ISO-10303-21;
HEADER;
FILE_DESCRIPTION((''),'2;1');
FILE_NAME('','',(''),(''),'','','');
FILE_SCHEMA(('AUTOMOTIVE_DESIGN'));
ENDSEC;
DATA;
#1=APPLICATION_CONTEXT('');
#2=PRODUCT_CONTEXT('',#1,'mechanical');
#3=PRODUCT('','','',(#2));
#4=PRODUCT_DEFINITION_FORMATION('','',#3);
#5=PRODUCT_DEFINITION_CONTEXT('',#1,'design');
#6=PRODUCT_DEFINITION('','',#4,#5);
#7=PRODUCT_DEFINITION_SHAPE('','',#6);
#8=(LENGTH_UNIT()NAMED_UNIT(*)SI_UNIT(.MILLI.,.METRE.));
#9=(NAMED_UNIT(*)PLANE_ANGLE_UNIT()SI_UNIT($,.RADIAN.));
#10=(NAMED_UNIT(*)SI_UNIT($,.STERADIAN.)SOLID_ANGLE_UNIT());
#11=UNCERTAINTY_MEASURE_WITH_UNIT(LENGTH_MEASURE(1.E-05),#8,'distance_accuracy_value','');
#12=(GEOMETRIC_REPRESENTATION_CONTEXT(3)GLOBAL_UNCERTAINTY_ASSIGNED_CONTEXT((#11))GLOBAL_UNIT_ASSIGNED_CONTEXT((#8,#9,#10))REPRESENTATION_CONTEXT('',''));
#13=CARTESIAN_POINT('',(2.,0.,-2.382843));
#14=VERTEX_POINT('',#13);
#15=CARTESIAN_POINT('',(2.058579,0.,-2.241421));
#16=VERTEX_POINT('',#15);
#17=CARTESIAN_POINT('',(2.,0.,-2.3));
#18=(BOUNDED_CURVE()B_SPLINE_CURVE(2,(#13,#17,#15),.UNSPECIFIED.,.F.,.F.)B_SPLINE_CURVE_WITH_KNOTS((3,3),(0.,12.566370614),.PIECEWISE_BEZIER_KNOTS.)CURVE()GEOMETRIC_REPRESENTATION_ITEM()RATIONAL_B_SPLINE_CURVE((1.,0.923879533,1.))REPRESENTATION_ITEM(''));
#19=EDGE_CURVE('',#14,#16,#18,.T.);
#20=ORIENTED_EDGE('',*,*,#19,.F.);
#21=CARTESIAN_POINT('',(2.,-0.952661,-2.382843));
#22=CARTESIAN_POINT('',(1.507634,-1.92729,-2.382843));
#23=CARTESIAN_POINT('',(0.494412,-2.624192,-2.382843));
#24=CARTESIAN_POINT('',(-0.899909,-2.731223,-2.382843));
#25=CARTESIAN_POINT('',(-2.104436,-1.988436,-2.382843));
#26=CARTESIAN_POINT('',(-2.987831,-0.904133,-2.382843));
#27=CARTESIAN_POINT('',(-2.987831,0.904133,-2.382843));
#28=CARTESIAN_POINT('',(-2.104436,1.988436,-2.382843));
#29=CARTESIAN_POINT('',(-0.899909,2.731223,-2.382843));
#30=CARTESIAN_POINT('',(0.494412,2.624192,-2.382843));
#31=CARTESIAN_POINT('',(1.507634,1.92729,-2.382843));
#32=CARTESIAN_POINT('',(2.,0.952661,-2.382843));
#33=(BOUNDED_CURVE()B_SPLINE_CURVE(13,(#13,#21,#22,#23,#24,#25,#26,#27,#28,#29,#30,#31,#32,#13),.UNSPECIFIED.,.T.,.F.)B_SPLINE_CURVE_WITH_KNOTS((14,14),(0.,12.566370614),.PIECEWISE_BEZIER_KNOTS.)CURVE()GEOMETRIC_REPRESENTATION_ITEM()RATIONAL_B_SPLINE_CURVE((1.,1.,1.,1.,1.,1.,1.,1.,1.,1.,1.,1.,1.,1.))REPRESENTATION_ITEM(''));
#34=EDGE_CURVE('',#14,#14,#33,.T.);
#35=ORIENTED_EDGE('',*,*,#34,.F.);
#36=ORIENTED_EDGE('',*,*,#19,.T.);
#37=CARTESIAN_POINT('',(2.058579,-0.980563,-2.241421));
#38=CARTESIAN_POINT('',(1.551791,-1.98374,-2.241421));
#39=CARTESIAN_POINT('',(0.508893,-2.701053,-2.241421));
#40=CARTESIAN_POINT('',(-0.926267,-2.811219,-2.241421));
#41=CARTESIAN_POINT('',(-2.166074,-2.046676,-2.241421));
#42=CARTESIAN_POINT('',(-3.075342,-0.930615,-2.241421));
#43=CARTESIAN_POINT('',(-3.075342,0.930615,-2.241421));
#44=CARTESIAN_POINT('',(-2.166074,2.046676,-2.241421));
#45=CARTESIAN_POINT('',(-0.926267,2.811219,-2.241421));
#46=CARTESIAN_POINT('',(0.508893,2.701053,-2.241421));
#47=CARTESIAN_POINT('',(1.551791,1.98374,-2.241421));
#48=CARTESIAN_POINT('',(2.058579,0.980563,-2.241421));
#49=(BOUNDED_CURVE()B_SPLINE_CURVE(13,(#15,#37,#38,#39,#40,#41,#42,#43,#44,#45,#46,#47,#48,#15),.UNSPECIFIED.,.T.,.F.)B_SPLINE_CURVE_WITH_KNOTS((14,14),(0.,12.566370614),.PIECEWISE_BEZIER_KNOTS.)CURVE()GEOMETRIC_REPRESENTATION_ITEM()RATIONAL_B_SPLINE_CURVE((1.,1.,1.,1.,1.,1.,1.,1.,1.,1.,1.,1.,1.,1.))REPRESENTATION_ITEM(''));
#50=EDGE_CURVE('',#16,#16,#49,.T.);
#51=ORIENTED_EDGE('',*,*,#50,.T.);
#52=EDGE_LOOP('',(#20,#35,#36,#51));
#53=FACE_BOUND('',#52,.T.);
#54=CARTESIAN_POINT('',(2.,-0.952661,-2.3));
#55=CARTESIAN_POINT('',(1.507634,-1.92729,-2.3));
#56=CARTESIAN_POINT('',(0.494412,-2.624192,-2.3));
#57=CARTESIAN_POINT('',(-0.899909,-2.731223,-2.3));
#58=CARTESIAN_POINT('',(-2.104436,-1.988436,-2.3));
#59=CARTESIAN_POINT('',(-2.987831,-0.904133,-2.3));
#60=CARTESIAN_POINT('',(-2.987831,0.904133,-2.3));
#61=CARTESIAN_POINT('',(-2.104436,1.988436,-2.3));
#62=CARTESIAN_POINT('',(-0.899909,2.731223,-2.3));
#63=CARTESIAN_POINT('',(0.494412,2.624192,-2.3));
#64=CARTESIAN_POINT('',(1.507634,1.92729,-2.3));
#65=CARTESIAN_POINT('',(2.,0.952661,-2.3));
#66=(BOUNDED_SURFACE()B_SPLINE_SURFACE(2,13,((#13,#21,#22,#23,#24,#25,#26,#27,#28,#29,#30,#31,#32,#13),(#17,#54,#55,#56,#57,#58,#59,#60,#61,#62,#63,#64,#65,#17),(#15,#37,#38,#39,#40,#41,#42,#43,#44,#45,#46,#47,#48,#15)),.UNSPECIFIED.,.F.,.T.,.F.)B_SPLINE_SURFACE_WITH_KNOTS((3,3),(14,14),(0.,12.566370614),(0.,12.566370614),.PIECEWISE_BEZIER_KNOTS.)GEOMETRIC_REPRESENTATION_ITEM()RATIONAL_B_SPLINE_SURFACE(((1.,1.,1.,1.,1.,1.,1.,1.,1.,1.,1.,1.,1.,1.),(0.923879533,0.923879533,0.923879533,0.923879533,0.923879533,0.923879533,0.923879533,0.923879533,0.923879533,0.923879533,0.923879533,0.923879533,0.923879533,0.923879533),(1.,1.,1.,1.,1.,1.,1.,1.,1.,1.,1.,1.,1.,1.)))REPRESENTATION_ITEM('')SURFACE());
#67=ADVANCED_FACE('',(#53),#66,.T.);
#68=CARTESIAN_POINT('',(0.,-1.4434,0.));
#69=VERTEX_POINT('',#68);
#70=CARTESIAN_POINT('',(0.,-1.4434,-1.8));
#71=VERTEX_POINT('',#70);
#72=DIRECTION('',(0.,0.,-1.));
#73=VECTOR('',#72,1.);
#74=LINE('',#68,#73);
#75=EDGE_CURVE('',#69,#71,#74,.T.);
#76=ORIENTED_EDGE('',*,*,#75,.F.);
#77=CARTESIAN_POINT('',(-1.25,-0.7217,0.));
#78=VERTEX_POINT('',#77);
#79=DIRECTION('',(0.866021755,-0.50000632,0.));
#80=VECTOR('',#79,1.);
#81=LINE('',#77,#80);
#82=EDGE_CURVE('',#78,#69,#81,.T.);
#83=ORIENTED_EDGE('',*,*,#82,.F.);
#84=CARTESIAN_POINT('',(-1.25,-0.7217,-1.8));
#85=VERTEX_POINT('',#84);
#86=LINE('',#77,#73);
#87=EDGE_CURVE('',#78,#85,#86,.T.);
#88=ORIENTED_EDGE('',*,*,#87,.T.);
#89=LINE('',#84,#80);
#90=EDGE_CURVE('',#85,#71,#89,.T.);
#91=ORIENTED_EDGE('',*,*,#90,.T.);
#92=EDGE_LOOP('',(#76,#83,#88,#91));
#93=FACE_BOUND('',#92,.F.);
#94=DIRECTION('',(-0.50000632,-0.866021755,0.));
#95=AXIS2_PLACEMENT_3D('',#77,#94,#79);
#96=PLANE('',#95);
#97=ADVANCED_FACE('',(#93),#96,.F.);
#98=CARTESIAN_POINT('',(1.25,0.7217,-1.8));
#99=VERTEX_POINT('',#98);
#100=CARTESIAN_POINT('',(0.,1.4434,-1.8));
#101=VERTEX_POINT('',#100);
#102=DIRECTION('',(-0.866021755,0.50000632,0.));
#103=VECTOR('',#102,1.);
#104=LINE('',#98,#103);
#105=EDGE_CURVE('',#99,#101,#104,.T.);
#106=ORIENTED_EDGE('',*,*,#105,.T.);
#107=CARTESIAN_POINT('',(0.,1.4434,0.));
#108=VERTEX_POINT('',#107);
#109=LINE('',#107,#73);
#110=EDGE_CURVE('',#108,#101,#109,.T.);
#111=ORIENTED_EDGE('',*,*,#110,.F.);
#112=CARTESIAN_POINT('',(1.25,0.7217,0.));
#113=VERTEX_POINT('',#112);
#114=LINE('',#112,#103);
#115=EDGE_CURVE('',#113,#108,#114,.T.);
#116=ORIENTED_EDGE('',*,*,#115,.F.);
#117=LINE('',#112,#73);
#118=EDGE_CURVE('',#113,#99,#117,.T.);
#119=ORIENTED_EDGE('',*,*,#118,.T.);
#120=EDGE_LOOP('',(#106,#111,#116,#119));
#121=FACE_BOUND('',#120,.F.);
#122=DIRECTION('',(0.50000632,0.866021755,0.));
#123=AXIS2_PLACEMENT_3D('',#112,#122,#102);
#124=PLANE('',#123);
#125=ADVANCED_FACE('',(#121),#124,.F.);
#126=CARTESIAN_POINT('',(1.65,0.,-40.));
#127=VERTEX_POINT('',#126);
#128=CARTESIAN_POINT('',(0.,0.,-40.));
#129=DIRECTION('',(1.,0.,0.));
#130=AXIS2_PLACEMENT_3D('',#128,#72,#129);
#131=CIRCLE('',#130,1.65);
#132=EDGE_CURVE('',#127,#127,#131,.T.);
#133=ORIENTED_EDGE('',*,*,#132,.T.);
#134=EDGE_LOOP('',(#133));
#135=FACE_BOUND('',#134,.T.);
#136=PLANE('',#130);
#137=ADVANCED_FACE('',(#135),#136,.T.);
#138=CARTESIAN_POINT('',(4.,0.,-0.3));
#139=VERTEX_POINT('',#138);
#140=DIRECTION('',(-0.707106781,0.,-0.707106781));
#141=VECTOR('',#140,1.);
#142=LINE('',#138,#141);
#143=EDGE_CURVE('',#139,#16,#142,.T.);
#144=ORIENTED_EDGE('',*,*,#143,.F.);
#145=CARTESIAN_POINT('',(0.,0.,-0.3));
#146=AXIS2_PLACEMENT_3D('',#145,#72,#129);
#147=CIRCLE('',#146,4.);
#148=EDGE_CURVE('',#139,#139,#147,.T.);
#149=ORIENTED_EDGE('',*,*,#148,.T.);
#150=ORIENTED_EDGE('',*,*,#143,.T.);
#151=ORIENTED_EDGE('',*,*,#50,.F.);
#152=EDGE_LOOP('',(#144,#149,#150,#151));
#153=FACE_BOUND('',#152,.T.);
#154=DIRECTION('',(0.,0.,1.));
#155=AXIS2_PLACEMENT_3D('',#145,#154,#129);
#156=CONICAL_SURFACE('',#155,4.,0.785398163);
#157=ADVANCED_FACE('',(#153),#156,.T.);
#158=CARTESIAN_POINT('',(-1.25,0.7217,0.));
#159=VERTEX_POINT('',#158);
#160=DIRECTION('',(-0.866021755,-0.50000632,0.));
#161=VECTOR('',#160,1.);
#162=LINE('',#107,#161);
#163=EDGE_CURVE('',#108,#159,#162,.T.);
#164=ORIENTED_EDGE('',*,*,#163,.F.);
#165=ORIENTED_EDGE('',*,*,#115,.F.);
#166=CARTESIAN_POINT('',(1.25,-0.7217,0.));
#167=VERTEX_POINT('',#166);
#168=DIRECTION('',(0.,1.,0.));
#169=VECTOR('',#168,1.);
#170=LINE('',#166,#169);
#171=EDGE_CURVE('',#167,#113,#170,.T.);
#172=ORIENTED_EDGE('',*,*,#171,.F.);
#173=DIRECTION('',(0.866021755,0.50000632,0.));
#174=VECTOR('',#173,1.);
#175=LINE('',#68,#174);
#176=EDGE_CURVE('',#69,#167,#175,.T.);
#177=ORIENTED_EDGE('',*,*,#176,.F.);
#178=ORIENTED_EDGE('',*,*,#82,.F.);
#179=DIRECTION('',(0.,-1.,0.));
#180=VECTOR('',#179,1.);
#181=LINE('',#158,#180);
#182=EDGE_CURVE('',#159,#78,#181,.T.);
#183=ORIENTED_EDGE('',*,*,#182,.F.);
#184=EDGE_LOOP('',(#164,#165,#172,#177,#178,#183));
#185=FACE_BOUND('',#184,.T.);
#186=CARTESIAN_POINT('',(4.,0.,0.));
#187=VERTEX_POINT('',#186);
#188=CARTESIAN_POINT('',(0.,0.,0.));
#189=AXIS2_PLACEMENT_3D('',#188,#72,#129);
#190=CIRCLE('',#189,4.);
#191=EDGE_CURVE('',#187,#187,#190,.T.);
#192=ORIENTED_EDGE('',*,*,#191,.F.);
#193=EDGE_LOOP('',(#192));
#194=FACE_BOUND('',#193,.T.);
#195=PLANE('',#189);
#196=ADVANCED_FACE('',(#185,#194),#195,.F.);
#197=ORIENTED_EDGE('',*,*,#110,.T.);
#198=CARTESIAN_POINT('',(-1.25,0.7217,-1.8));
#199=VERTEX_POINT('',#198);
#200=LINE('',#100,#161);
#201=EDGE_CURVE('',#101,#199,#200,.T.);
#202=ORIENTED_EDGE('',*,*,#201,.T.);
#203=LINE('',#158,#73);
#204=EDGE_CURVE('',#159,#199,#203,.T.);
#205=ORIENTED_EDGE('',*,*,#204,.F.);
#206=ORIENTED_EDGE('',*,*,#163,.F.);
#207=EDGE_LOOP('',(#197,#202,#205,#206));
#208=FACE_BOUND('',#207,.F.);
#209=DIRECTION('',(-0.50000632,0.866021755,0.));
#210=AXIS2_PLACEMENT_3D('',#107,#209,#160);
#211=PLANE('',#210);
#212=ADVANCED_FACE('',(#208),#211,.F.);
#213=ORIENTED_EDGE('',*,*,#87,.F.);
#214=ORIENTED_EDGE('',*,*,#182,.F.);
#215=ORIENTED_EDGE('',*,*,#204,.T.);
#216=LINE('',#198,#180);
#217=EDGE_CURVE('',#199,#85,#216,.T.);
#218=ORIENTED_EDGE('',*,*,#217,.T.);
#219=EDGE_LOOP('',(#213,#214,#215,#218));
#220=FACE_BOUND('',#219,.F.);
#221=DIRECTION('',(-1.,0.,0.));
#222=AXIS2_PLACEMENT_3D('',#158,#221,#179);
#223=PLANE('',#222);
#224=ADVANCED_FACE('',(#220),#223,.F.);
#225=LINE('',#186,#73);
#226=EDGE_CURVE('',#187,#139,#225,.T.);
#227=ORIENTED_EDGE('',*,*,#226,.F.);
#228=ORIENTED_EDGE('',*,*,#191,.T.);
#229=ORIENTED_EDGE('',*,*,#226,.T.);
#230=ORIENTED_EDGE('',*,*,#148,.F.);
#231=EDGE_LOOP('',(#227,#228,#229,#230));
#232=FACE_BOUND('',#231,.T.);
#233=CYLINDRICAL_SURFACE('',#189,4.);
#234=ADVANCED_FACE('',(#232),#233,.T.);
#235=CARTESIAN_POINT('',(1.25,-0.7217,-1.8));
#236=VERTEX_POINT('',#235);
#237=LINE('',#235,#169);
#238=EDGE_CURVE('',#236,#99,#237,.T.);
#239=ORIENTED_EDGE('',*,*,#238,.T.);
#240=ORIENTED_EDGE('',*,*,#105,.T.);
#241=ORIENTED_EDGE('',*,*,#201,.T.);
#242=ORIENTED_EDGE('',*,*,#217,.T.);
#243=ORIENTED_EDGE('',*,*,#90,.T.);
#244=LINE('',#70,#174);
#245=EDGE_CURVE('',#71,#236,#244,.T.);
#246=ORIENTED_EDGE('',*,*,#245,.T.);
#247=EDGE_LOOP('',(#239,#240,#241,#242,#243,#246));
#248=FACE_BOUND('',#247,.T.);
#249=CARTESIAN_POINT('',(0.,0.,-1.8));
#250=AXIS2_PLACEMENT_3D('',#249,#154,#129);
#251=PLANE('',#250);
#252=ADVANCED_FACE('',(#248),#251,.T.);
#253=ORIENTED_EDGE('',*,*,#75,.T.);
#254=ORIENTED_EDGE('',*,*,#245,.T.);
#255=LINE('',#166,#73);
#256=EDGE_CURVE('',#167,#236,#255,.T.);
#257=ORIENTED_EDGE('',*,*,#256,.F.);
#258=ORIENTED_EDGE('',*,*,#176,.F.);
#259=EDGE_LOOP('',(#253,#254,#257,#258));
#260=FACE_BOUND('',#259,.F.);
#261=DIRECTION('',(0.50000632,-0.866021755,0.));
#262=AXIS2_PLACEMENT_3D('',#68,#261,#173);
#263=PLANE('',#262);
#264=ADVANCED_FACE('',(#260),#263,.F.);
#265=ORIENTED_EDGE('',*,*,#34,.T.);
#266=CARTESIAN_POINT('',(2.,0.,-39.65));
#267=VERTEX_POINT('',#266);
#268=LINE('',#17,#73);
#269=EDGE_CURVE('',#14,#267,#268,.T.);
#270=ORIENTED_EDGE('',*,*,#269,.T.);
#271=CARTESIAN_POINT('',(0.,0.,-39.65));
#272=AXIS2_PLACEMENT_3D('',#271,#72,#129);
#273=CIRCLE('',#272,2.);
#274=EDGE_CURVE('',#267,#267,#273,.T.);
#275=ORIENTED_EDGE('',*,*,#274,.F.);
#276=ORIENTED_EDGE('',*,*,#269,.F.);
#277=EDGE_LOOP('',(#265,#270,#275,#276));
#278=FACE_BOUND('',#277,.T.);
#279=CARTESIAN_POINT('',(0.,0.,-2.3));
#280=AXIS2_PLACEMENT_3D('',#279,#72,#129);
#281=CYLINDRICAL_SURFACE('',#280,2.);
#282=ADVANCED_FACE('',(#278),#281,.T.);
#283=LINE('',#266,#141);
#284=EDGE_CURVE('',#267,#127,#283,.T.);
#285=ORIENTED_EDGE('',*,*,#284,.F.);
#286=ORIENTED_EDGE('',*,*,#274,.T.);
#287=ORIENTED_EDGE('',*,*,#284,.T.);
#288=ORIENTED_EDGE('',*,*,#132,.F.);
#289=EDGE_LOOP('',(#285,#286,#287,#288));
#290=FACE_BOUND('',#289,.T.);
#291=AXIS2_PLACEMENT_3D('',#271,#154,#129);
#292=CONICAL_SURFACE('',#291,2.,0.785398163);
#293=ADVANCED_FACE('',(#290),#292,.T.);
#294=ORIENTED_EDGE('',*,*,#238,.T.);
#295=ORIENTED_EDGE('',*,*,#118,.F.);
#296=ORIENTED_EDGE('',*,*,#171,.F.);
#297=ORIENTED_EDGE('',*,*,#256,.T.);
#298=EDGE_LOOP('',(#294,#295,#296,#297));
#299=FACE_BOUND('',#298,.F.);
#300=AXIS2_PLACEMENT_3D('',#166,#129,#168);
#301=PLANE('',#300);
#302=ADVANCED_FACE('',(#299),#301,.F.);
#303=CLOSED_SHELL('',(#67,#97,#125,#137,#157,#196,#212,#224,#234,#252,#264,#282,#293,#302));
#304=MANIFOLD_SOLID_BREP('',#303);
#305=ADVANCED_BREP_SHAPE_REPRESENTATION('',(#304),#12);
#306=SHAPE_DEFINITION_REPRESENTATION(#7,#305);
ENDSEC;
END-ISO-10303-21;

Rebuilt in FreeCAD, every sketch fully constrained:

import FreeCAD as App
import Part
import Sketcher

V = App.Vector
Q = App.Units.Quantity


def edges_at(feature, points):
    """Names of the edges that pass closest to the given points."""
    edges = feature.Shape.Edges
    near = lambda p: min(range(len(edges)), key=lambda i: edges[i].distToShape(Part.Vertex(*p))[0])
    return sorted({f"Edge{near(p) + 1}" for p in points})


def add_polygon(sketch, points):
    """Adds a closed chain of lines whose ends are joined by coincident constraints."""
    first, n = sketch.GeometryCount, len(points)
    for a, b in zip(points, points[1:] + points[:1]):
        sketch.addGeometry(Part.LineSegment(App.Vector(*a, 0), App.Vector(*b, 0)), False)
    for i in range(n):
        sketch.addConstraint(Sketcher.Constraint("Coincident", first + i, 2, first + (i + 1) % n, 1))

doc = App.newDocument("Part")
body = doc.addObject("PartDesign::Body", "Body")

sketch1 = doc.addObject("Sketcher::SketchObject", "Sketch")
body.addObject(sketch1)
sketch1.AttachmentSupport = (doc.XZ_Plane, [""])
sketch1.MapMode = "FlatFace"
add_polygon(sketch1, [(2, -2.3), (2, -40), (0, -40), (0, 0), (4, 0), (4, -0.3)])
sketch1.addConstraint(Sketcher.Constraint("Vertical", 0))
sketch1.addConstraint(Sketcher.Constraint("Horizontal", 1))
sketch1.addConstraint(Sketcher.Constraint("Vertical", 2))
sketch1.addConstraint(Sketcher.Constraint("Horizontal", 3))
sketch1.addConstraint(Sketcher.Constraint("Vertical", 4))
sketch1.addConstraint(Sketcher.Constraint("Coincident", 2, 2, -1, 1))
sketch1.addConstraint(Sketcher.Constraint("DistanceX", 1, 2, 1, 1, 2.0))
sketch1.addConstraint(Sketcher.Constraint("DistanceX", 3, 1, 3, 2, 4.0))
sketch1.addConstraint(Sketcher.Constraint("DistanceY", 2, 1, 2, 2, 40.0))
sketch1.addConstraint(Sketcher.Constraint("DistanceY", 4, 2, 4, 1, 0.3))
sketch1.addConstraint(Sketcher.Constraint("DistanceY", 5, 2, 4, 2, 2.0))
revolution = doc.addObject("PartDesign::Revolution", "Revolution")
body.addObject(revolution)
revolution.Profile = sketch1
revolution.ReferenceAxis = (sketch1, ["V_Axis"])
revolution.Angle = 360

sketch2 = doc.addObject("Sketcher::SketchObject", "Sketch001")
body.addObject(sketch2)
sketch2.AttachmentSupport = (doc.XY_Plane, [""])
sketch2.MapMode = "FlatFace"
add_polygon(sketch2, [(0, 1.4), (-1.2, 0.7), (-1.2, -0.7), (0, -1.4), (1.2, -0.7), (1.2, 0.7)])
sketch2.addConstraint(Sketcher.Constraint("Vertical", 1))
sketch2.addConstraint(Sketcher.Constraint("Vertical", 4))
sketch2.addConstraint(Sketcher.Constraint("Symmetric", 0, 2, 3, 2, -1, 1))
sketch2.addConstraint(Sketcher.Constraint("Symmetric", 2, 2, 5, 2, -1, 1))
sketch2.addConstraint(Sketcher.Constraint("PointOnObject", 2, 2, -2))
sketch2.addConstraint(Sketcher.Constraint("Parallel", 2, 5))
sketch2.addConstraint(Sketcher.Constraint("Horizontal", 1, 2, 3, 2))
sketch2.addConstraint(Sketcher.Constraint("DistanceX", 1, 2, 3, 2, 2.5))
sketch2.addConstraint(Sketcher.Constraint("Angle", 0, Q("-149.9996 deg")))
sketch2.addConstraint(Sketcher.Constraint("DistanceY", 1, 2, 1, 1, 1.4434))
pocket1 = doc.addObject("PartDesign::Pocket", "Pocket")
body.addObject(pocket1)
pocket1.Profile = sketch2
pocket1.Length = 1.8
doc.recompute()

fillet = doc.addObject("PartDesign::Fillet", "Fillet")
body.addObject(fillet)
fillet.Base = (pocket1, edges_at(pocket1, [(-2, 0, -2.3)]))
fillet.Radius = 0.2
doc.recompute()

chamfer = doc.addObject("PartDesign::Chamfer", "Chamfer")
body.addObject(chamfer)
chamfer.Base = (fillet, edges_at(fillet, [(-2, 0, -40)]))
chamfer.Size = 0.35

doc.recompute()
